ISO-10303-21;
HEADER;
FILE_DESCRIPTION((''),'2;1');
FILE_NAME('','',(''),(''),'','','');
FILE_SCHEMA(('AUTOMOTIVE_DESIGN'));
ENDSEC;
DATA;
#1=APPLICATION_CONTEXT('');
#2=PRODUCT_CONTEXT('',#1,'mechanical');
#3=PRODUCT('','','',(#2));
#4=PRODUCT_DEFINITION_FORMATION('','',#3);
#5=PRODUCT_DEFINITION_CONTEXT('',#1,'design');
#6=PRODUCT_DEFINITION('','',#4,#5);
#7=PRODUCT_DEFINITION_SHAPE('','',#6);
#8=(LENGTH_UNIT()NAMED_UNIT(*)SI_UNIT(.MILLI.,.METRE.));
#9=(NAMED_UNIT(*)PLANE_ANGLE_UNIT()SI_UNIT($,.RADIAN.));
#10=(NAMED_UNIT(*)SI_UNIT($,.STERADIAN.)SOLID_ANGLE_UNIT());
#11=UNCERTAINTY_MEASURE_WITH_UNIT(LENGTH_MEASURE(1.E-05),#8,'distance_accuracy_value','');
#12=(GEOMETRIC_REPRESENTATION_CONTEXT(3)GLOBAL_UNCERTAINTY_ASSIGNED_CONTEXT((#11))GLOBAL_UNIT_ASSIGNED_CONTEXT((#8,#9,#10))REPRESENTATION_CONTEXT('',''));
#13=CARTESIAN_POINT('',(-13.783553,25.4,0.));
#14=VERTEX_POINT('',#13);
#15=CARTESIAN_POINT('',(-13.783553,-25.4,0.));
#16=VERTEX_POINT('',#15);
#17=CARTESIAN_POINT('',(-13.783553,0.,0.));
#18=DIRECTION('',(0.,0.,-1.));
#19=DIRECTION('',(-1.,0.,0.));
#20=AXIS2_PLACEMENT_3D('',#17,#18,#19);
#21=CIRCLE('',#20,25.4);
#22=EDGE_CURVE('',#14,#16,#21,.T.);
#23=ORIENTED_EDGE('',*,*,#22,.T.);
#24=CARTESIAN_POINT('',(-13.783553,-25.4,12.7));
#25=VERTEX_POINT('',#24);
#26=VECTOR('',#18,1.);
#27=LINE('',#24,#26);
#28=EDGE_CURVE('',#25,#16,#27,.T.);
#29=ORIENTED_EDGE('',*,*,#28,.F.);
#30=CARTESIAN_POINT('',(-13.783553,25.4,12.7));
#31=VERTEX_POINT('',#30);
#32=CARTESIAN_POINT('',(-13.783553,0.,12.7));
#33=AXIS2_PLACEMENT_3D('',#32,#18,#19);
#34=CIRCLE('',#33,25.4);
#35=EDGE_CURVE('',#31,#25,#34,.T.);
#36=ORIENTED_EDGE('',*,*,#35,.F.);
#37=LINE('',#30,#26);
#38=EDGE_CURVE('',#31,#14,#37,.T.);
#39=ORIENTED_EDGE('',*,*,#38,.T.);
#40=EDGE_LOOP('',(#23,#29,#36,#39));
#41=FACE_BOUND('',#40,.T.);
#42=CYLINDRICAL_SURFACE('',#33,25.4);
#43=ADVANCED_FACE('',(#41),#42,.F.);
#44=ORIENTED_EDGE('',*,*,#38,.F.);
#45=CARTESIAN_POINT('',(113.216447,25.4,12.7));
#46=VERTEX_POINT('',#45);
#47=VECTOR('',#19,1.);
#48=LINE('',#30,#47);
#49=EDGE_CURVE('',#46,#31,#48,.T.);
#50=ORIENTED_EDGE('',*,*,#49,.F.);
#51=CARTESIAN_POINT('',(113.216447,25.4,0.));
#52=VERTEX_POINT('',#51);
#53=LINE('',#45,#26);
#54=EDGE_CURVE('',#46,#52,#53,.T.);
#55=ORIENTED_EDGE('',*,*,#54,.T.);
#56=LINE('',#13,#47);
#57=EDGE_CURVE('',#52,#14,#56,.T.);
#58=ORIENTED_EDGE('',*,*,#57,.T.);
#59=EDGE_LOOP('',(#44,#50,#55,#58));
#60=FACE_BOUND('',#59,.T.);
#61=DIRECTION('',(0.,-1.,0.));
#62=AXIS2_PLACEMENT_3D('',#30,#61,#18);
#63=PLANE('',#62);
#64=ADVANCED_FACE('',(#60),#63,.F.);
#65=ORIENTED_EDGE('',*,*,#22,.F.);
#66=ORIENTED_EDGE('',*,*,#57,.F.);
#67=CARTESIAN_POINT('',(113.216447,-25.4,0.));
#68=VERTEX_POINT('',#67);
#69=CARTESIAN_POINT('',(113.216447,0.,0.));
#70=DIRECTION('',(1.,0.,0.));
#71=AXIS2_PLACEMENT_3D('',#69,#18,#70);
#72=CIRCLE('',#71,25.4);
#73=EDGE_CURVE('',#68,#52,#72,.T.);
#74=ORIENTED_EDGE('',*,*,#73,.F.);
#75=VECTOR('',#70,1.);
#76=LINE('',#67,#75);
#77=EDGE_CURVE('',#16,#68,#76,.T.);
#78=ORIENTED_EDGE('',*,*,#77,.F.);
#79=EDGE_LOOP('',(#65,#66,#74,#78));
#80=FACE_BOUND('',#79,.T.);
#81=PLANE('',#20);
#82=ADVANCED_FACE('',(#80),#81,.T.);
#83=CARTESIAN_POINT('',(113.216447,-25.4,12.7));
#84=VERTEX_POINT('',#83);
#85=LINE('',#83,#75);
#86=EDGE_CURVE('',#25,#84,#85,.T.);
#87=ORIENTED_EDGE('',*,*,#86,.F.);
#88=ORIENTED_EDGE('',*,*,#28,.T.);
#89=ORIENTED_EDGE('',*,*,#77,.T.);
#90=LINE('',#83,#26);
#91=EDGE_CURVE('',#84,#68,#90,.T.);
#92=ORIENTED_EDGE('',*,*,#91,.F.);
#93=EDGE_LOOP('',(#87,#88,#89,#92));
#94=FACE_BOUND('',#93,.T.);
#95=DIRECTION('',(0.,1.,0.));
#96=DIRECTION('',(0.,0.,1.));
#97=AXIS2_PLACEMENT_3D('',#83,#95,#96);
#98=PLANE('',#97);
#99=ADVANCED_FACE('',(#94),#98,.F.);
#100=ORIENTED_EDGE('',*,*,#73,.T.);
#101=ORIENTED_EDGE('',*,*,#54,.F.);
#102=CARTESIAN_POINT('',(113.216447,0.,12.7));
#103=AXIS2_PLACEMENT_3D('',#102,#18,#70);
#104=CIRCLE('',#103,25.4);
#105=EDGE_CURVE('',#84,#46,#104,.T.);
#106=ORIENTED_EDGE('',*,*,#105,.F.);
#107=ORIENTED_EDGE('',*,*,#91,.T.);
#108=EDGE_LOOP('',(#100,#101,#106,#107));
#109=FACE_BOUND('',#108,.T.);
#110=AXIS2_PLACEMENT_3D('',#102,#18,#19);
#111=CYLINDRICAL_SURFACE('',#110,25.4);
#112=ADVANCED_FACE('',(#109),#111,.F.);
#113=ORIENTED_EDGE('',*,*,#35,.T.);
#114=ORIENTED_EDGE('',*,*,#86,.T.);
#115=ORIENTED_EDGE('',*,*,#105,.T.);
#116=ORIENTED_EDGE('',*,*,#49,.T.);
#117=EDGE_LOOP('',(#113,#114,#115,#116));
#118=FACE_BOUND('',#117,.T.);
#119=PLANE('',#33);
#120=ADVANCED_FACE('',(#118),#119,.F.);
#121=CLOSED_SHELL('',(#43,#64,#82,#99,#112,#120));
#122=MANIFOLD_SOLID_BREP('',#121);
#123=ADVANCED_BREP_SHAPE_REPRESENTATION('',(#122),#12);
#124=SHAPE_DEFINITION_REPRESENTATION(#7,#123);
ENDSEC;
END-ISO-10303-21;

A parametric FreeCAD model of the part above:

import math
import FreeCAD as App
import Part
import Sketcher
Q = App.Units.Quantity

doc = App.newDocument("Part")
body = doc.addObject("PartDesign::Body", "Body")

# Sketch on XY plane
sketch1 = body.newObject("Sketcher::SketchObject", "Sketch")
sketch1.AttachmentSupport = (doc.getObject("XY_Plane"), [""])
sketch1.MapMode = "FlatFace"
sketch1.addGeometry(Part.LineSegment(App.Vector(113, 25, 0), App.Vector(-14, 25, 0)), False)
sketch1.addGeometry(Part.ArcOfCircle(Part.Circle(App.Vector(-14, 0, 0), App.Vector(0, 0, 1), 25), math.radians(-90), math.radians(90)), False)
sketch1.addGeometry(Part.LineSegment(App.Vector(-14, -25, 0), App.Vector(113, -25, 0)), False)
sketch1.addGeometry(Part.ArcOfCircle(Part.Circle(App.Vector(113, 0, 0), App.Vector(0, 0, 1), 25), math.radians(90), math.radians(270)), False)
sketch1.addConstraint(Sketcher.Constraint("Tangent", 0, 2, 1, 2))
sketch1.addConstraint(Sketcher.Constraint("Tangent", 1, 1, 2, 1))
sketch1.addConstraint(Sketcher.Constraint("Tangent", 2, 2, 3, 2))
sketch1.addConstraint(Sketcher.Constraint("Tangent", 3, 1, 0, 1))
sketch1.addConstraint(Sketcher.Constraint("Horizontal", 0))
sketch1.addConstraint(Sketcher.Constraint("Horizontal", 2))
sketch1.addConstraint(Sketcher.Constraint("PointOnObject", 1, 3, -1))
sketch1.addConstraint(Sketcher.Constraint("Radius", 1, Q("1 in")))
sketch1.addConstraint(Sketcher.Constraint("DistanceX", 0, 2, 0, 1, Q("5 in")))
sketch1.addConstraint(Sketcher.Constraint("DistanceX", 1, 3, -1, 1, Q("13.783553 mm")))
pad1 = body.newObject("PartDesign::Pad", "Pad")
pad1.Profile = sketch1
pad1.Length = Q("0.5 in")

doc.recompute()
